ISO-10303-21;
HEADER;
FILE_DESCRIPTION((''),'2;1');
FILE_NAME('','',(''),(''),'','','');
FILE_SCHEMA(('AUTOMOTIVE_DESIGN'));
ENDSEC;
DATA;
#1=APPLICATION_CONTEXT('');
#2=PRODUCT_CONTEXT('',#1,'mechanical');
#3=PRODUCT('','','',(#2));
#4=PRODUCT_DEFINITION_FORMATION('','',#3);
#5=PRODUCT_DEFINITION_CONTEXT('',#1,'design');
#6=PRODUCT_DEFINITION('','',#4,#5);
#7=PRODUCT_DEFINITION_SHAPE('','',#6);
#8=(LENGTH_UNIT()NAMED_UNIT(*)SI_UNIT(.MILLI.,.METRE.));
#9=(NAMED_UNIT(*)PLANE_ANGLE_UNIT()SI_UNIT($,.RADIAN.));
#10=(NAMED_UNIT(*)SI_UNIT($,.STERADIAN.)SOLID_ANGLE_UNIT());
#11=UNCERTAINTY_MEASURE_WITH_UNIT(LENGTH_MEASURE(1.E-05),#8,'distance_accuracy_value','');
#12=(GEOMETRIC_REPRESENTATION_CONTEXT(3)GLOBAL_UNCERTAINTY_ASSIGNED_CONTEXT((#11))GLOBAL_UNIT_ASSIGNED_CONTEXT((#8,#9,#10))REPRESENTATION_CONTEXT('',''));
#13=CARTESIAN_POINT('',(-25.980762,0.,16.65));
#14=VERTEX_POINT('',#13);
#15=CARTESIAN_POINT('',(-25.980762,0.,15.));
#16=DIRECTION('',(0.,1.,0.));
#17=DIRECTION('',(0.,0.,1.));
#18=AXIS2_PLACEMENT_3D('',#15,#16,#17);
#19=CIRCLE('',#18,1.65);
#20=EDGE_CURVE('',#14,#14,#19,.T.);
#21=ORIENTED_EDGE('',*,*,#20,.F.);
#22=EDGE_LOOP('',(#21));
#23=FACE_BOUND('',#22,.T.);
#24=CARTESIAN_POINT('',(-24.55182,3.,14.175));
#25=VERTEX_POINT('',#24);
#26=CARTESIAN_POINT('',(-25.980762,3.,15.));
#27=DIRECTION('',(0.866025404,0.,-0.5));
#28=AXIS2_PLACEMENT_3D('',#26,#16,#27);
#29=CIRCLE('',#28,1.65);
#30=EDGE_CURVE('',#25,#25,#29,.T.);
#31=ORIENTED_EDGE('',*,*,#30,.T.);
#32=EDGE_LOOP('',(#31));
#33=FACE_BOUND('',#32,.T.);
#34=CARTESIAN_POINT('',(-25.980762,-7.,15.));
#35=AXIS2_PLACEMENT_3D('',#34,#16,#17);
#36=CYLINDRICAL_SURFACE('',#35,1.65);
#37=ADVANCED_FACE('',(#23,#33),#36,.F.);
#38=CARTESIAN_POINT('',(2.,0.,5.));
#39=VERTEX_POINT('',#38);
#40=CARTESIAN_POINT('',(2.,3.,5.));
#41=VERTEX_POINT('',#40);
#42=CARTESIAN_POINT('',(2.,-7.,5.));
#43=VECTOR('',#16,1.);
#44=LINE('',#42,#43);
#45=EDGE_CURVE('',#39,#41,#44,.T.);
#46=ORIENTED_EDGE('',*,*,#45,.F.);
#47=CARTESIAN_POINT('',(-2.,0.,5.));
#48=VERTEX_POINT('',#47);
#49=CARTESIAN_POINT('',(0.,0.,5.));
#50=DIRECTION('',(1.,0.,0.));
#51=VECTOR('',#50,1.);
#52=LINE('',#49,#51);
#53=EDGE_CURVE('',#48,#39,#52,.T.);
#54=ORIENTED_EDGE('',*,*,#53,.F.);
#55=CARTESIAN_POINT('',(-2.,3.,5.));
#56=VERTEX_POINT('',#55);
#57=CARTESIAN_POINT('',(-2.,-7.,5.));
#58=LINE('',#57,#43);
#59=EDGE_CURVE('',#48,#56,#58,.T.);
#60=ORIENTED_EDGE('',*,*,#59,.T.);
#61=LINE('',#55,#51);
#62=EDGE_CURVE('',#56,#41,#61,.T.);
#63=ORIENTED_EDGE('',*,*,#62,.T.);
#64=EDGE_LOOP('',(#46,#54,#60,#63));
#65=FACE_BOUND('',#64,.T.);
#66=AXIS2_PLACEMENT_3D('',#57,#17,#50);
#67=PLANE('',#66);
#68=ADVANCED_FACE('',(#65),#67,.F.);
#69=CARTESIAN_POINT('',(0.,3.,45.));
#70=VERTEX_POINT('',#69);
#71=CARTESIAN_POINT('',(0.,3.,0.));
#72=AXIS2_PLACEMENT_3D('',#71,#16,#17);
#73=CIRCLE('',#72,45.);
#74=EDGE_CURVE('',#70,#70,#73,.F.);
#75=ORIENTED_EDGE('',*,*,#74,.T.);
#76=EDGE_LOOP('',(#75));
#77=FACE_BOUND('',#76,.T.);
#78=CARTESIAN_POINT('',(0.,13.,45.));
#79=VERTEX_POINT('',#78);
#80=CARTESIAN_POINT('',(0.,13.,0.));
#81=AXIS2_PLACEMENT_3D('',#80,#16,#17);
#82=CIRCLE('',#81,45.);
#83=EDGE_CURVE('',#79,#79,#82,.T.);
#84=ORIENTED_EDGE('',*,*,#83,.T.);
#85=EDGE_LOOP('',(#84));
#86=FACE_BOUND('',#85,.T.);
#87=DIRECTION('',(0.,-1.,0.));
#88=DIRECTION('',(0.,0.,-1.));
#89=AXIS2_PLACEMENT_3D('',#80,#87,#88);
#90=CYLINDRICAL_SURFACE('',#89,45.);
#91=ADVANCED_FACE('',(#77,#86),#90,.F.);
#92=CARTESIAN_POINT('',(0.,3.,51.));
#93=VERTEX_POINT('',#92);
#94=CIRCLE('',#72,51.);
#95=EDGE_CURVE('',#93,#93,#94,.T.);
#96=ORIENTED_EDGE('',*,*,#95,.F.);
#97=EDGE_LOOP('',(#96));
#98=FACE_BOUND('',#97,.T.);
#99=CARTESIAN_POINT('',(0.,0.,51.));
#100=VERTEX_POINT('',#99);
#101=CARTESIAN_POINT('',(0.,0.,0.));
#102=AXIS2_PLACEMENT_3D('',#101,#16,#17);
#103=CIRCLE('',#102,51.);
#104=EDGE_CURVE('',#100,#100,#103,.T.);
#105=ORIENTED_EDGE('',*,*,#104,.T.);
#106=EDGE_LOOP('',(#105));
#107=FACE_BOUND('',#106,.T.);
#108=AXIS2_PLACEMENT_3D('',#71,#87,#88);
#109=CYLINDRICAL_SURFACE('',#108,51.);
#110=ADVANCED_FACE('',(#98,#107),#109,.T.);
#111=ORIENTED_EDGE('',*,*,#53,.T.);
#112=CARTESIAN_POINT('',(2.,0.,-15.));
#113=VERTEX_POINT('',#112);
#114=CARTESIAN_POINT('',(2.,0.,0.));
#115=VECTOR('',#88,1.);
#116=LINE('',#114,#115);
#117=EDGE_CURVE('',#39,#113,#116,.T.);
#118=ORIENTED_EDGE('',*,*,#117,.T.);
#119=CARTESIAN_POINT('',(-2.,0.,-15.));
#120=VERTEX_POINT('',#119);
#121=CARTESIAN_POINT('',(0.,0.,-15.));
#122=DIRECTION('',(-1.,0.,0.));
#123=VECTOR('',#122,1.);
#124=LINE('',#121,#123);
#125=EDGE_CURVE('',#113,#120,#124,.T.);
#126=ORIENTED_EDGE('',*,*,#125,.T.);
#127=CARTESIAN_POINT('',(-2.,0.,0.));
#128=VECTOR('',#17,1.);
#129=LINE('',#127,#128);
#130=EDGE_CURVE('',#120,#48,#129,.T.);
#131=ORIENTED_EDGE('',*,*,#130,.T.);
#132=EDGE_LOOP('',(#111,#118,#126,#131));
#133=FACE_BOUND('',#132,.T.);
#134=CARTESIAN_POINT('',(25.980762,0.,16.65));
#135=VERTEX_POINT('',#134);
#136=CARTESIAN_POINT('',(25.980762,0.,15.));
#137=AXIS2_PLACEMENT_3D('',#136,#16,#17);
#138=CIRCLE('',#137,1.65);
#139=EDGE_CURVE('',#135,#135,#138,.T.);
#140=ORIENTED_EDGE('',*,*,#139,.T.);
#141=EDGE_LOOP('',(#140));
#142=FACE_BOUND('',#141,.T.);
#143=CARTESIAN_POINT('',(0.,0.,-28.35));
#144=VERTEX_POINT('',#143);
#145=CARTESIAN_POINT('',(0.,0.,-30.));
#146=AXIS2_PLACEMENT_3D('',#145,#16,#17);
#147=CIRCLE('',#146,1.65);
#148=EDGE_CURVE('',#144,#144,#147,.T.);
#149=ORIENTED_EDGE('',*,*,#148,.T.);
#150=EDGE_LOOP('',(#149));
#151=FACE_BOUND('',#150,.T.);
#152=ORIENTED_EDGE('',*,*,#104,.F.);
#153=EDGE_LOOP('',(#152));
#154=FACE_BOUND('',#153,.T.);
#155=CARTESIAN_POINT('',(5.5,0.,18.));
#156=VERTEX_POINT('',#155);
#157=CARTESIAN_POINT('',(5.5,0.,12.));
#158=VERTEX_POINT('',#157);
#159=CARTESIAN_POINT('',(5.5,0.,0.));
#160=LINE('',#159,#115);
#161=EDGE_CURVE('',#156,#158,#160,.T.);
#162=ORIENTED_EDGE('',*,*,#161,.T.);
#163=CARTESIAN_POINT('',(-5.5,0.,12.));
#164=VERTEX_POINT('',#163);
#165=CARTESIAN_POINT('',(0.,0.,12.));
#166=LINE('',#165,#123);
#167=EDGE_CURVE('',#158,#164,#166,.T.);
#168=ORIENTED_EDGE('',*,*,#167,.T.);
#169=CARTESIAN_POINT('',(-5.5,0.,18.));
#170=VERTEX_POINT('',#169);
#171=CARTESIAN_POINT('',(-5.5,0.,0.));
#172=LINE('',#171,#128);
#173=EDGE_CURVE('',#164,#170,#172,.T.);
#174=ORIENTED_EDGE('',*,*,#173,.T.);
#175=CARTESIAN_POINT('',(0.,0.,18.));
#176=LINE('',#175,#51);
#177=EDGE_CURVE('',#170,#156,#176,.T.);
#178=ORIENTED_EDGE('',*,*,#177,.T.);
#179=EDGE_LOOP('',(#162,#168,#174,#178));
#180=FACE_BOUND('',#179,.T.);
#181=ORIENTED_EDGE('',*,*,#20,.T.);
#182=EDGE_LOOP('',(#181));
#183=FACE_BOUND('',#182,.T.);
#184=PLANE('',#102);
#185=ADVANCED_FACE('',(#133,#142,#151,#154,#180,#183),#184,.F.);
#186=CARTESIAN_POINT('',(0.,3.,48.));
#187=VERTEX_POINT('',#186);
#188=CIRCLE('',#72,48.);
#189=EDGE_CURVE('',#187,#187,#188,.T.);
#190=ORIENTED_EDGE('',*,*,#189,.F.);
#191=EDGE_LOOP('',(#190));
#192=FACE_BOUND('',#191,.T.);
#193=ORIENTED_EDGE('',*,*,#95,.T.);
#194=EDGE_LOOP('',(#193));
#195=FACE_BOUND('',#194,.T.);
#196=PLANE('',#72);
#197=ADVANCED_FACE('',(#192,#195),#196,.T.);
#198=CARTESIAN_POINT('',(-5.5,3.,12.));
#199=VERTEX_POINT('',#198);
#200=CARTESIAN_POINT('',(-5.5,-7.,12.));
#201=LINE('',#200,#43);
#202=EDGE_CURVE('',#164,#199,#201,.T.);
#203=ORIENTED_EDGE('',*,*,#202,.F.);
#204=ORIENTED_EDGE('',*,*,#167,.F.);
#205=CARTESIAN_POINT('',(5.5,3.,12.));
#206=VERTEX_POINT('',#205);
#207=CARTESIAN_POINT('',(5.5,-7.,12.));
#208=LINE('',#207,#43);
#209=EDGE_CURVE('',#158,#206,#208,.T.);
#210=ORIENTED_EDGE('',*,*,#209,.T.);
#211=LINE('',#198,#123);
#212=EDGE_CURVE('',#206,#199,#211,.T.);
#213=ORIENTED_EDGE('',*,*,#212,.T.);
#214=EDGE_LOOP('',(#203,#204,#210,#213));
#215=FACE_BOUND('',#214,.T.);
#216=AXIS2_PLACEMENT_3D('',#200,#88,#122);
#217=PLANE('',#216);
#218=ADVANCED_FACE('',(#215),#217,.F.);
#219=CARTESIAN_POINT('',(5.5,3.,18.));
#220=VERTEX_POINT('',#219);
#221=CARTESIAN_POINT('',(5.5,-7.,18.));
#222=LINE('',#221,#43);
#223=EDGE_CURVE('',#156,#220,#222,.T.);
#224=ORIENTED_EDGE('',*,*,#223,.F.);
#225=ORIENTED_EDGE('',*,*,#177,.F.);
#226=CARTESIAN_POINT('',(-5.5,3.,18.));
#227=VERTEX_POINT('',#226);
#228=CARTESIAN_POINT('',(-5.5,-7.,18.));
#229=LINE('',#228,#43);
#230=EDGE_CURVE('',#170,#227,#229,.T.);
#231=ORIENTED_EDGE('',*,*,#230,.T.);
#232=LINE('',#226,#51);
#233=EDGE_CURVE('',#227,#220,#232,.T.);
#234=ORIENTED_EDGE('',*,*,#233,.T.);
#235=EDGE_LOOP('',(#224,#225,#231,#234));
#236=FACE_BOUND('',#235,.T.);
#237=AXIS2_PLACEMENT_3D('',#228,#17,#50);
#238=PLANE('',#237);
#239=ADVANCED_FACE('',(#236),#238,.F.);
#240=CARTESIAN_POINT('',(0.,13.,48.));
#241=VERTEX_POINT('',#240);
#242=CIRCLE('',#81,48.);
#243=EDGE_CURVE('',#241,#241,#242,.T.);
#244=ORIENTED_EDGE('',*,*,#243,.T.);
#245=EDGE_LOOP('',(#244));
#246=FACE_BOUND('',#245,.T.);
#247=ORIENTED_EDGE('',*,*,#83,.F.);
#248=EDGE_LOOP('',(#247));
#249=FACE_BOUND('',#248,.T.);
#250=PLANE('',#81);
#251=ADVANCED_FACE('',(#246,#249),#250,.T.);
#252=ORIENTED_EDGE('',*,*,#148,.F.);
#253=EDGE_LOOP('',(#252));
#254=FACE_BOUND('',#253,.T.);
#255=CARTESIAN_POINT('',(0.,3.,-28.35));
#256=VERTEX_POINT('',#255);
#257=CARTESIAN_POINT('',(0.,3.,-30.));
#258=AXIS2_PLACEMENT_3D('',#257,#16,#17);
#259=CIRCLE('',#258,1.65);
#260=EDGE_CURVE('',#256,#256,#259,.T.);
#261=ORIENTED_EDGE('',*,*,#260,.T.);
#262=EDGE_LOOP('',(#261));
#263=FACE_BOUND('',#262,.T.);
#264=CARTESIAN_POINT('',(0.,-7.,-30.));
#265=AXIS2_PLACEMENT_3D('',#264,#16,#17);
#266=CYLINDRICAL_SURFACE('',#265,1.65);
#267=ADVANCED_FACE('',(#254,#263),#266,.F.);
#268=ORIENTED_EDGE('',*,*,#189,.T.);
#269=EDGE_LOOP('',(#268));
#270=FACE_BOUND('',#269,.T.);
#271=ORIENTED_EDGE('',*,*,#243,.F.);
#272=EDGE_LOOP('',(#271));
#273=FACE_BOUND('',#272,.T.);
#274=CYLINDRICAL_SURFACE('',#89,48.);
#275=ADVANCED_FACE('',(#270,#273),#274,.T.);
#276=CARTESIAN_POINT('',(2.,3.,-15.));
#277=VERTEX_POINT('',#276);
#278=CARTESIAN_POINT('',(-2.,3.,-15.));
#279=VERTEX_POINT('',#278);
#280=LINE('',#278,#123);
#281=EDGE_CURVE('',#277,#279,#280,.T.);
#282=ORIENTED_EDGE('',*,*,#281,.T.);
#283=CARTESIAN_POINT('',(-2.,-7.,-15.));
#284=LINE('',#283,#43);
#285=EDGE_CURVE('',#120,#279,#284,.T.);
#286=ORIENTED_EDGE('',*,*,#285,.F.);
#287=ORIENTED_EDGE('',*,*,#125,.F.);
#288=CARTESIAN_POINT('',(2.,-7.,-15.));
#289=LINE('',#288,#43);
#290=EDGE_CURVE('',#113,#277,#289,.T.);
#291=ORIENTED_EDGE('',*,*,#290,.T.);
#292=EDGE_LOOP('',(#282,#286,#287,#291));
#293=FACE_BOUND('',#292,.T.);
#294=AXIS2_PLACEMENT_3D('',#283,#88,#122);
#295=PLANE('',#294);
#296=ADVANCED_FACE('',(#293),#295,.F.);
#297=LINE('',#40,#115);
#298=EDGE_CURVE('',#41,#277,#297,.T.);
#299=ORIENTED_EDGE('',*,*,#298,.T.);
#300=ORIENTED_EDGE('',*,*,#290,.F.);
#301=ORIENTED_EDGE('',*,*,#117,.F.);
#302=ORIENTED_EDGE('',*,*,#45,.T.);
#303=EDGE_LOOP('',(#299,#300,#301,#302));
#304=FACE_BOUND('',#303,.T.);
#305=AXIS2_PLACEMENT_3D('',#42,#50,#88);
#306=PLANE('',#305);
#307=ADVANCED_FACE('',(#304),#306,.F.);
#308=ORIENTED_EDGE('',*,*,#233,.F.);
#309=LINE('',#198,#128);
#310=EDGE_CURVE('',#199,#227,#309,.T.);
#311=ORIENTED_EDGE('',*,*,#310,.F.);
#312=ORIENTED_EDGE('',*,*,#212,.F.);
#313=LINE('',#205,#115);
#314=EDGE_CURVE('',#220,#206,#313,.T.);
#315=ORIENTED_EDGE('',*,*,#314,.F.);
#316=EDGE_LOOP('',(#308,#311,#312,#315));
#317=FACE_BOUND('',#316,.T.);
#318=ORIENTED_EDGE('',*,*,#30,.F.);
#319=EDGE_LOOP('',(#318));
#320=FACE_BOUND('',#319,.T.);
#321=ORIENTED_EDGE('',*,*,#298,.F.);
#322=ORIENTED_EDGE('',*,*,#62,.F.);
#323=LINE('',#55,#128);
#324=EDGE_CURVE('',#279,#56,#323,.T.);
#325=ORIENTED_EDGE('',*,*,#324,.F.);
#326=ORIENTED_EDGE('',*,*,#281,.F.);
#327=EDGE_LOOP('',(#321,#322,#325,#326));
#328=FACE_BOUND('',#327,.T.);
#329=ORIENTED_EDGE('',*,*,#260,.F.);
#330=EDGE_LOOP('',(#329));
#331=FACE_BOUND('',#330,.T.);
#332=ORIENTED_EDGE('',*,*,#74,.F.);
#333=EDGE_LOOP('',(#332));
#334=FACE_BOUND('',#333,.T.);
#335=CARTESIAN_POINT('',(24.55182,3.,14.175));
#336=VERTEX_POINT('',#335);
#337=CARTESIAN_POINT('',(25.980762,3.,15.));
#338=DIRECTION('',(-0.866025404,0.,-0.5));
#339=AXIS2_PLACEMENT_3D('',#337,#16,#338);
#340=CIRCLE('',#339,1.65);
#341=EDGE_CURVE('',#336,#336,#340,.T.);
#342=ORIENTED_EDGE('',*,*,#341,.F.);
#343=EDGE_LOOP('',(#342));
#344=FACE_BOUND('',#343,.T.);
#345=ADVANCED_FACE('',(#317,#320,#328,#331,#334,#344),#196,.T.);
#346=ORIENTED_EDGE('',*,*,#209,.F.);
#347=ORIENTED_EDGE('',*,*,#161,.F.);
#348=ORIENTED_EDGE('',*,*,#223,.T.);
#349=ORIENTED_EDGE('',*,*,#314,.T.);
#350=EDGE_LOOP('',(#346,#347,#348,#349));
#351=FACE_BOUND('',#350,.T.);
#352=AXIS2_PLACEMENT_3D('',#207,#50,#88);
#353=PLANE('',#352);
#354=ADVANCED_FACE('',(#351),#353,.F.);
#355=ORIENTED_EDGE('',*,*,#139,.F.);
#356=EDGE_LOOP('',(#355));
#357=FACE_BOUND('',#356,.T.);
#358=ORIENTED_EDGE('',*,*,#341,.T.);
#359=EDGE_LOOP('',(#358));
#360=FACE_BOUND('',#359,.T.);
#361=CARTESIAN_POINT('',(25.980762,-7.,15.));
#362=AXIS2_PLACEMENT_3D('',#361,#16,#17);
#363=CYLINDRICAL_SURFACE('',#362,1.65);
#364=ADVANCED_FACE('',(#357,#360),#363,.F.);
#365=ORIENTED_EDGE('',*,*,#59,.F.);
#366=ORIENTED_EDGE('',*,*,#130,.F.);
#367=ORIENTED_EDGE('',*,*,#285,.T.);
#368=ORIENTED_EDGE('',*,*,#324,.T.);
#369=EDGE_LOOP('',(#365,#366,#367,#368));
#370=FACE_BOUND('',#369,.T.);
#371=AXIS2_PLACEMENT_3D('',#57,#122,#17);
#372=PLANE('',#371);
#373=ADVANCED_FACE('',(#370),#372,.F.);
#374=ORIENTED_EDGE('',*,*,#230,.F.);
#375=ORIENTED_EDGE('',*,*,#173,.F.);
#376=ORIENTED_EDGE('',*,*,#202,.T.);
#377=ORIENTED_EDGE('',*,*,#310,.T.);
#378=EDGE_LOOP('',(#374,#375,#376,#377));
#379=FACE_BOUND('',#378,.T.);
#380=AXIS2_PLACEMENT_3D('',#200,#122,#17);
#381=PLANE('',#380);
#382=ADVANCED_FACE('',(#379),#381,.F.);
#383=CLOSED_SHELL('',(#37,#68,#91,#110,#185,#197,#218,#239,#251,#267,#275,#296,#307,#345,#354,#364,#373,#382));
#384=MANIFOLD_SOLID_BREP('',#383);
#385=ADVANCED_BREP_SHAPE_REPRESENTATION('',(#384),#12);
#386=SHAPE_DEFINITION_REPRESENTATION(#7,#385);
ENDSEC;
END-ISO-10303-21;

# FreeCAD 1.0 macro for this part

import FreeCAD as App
import Part
import Sketcher
Q = App.Units.Quantity

doc = App.newDocument("Part")
body = doc.addObject("PartDesign::Body", "Body")

# Sketch on XZ plane
sketch1 = body.newObject("Sketcher::SketchObject", "Sketch")
sketch1.AttachmentSupport = (doc.getObject("XZ_Plane"), [""])
sketch1.MapMode = "FlatFace"
sketch1.addGeometry(Part.Circle(App.Vector(0, 0, 0), App.Vector(0, 0, 1), 51), False)
sketch1.addConstraint([
    Sketcher.Constraint("Coincident", 0, 3, -1, 1),
    Sketcher.Constraint("Diameter", 0, Q("102 mm")),
])
pad1 = body.newObject("PartDesign::Pad", "Pad")
pad1.Profile = sketch1
pad1.Length = 3
pad1.Reversed = True

# Sketch on XZ plane
sketch2 = body.newObject("Sketcher::SketchObject", "Sketch001")
sketch2.AttachmentSupport = (doc.getObject("XZ_Plane"), [""])
sketch2.MapMode = "FlatFace"
sketch2.AttachmentOffset = App.Placement(App.Vector(0, 0, -3), App.Rotation())
sketch2.addGeometry([
    Part.Circle(App.Vector(0, 0, 0), App.Vector(0, 0, 1), 48),
    Part.Circle(App.Vector(0, 0, 0), App.Vector(0, 0, 1), 45),
], False)
sketch2.addConstraint([
    Sketcher.Constraint("Coincident", 0, 3, -1, 1),
    Sketcher.Constraint("Coincident", 1, 3, -1, 1),
    Sketcher.Constraint("Diameter", 0, Q("96 mm")),
    Sketcher.Constraint("Diameter", 1, Q("90 mm")),
])
pad2 = body.newObject("PartDesign::Pad", "Pad001")
pad2.Profile = sketch2
pad2.Length = 10
pad2.Reversed = True

# Sketch on XZ plane
sketch3 = body.newObject("Sketcher::SketchObject", "Sketch002")
sketch3.AttachmentSupport = (doc.getObject("XZ_Plane"), [""])
sketch3.MapMode = "FlatFace"
sketch3.AttachmentOffset = App.Placement(App.Vector(0, 0, -3), App.Rotation())
sketch3.addGeometry(Part.Circle(App.Vector(0, -30, 0), App.Vector(0, 0, 1), 1.6), False)
sketch3.addConstraint([
    Sketcher.Constraint("PointOnObject", 0, 3, -2),
    Sketcher.Constraint("Diameter", 0, Q("3.3 mm")),
    Sketcher.Constraint("DistanceY", 0, 3, -1, 1, Q("30 mm")),
])
pocket1 = body.newObject("PartDesign::Pocket", "Pocket")
pocket1.Profile = sketch3
pocket1.Length = 10
pocket1.Reversed = True
doc.recompute()

polarpattern = body.newObject("PartDesign::PolarPattern", "PolarPattern")
polarpattern.Originals = [pocket1]
polarpattern.Axis = (doc.getObject("Y_Axis"), [""])
polarpattern.Angle = 360
polarpattern.Occurrences = 3
body.Tip = polarpattern

# Sketch on XZ plane
sketch4 = body.newObject("Sketcher::SketchObject", "Sketch003")
sketch4.AttachmentSupport = (doc.getObject("XZ_Plane"), [""])
sketch4.MapMode = "FlatFace"
sketch4.AttachmentOffset = App.Placement(App.Vector(0, 0, -3), App.Rotation())
sketch4.addGeometry([
    Part.LineSegment(App.Vector(-2, -15, 0), App.Vector(-2, 5, 0)),  # 0
    Part.LineSegment(App.Vector(-2, 5, 0), App.Vector(2, 5, 0)),  # 1
    Part.LineSegment(App.Vector(2, 5, 0), App.Vector(2, -15, 0)),  # 2
    Part.LineSegment(App.Vector(2, -15, 0), App.Vector(-2, -15, 0)),  # 3
    Part.LineSegment(App.Vector(-5.5, 12, 0), App.Vector(-5.5, 18, 0)),  # 4
    Part.LineSegment(App.Vector(-5.5, 18, 0), App.Vector(5.5, 18, 0)),  # 5
    Part.LineSegment(App.Vector(5.5, 18, 0), App.Vector(5.5, 12, 0)),  # 6
    Part.LineSegment(App.Vector(5.5, 12, 0), App.Vector(-5.5, 12, 0)),  # 7
], False)
sketch4.addConstraint([
    Sketcher.Constraint("Coincident", 0, 2, 1, 1),
    Sketcher.Constraint("Coincident", 1, 2, 2, 1),
    Sketcher.Constraint("Coincident", 2, 2, 3, 1),
    Sketcher.Constraint("Coincident", 3, 2, 0, 1),
    Sketcher.Constraint("Coincident", 4, 2, 5, 1),
    Sketcher.Constraint("Coincident", 5, 2, 6, 1),
    Sketcher.Constraint("Coincident", 6, 2, 7, 1),
    Sketcher.Constraint("Coincident", 7, 2, 4, 1),
    Sketcher.Constraint("Vertical", 0),
    Sketcher.Constraint("Horizontal", 1),
    Sketcher.Constraint("Vertical", 2),
    Sketcher.Constraint("Horizontal", 3),
    Sketcher.Constraint("Vertical", 4),
    Sketcher.Constraint("Horizontal", 5),
    Sketcher.Constraint("Vertical", 6),
    Sketcher.Constraint("Horizontal", 7),
    Sketcher.Constraint("DistanceX", 1, 1, 1, 2, Q("4 mm")),
    Sketcher.Constraint("DistanceX", 5, 1, 5, 2, Q("11 mm")),
    Sketcher.Constraint("DistanceY", 0, 1, 0, 2, Q("20 mm")),
    Sketcher.Constraint("DistanceY", 4, 1, 4, 2, Q("6 mm")),
    Sketcher.Constraint("DistanceX", 0, 2, -1, 1, Q("2 mm")),
    Sketcher.Constraint("DistanceY", -1, 1, 0, 2, Q("5 mm")),
    Sketcher.Constraint("DistanceY", -1, 1, 4, 2, Q("18 mm")),
    Sketcher.Constraint("DistanceX", 4, 2, -1, 1, Q("5.5 mm")),
])
pocket2 = body.newObject("PartDesign::Pocket", "Pocket001")
pocket2.Profile = sketch4
pocket2.Length = 10
pocket2.Reversed = True

doc.recompute()
